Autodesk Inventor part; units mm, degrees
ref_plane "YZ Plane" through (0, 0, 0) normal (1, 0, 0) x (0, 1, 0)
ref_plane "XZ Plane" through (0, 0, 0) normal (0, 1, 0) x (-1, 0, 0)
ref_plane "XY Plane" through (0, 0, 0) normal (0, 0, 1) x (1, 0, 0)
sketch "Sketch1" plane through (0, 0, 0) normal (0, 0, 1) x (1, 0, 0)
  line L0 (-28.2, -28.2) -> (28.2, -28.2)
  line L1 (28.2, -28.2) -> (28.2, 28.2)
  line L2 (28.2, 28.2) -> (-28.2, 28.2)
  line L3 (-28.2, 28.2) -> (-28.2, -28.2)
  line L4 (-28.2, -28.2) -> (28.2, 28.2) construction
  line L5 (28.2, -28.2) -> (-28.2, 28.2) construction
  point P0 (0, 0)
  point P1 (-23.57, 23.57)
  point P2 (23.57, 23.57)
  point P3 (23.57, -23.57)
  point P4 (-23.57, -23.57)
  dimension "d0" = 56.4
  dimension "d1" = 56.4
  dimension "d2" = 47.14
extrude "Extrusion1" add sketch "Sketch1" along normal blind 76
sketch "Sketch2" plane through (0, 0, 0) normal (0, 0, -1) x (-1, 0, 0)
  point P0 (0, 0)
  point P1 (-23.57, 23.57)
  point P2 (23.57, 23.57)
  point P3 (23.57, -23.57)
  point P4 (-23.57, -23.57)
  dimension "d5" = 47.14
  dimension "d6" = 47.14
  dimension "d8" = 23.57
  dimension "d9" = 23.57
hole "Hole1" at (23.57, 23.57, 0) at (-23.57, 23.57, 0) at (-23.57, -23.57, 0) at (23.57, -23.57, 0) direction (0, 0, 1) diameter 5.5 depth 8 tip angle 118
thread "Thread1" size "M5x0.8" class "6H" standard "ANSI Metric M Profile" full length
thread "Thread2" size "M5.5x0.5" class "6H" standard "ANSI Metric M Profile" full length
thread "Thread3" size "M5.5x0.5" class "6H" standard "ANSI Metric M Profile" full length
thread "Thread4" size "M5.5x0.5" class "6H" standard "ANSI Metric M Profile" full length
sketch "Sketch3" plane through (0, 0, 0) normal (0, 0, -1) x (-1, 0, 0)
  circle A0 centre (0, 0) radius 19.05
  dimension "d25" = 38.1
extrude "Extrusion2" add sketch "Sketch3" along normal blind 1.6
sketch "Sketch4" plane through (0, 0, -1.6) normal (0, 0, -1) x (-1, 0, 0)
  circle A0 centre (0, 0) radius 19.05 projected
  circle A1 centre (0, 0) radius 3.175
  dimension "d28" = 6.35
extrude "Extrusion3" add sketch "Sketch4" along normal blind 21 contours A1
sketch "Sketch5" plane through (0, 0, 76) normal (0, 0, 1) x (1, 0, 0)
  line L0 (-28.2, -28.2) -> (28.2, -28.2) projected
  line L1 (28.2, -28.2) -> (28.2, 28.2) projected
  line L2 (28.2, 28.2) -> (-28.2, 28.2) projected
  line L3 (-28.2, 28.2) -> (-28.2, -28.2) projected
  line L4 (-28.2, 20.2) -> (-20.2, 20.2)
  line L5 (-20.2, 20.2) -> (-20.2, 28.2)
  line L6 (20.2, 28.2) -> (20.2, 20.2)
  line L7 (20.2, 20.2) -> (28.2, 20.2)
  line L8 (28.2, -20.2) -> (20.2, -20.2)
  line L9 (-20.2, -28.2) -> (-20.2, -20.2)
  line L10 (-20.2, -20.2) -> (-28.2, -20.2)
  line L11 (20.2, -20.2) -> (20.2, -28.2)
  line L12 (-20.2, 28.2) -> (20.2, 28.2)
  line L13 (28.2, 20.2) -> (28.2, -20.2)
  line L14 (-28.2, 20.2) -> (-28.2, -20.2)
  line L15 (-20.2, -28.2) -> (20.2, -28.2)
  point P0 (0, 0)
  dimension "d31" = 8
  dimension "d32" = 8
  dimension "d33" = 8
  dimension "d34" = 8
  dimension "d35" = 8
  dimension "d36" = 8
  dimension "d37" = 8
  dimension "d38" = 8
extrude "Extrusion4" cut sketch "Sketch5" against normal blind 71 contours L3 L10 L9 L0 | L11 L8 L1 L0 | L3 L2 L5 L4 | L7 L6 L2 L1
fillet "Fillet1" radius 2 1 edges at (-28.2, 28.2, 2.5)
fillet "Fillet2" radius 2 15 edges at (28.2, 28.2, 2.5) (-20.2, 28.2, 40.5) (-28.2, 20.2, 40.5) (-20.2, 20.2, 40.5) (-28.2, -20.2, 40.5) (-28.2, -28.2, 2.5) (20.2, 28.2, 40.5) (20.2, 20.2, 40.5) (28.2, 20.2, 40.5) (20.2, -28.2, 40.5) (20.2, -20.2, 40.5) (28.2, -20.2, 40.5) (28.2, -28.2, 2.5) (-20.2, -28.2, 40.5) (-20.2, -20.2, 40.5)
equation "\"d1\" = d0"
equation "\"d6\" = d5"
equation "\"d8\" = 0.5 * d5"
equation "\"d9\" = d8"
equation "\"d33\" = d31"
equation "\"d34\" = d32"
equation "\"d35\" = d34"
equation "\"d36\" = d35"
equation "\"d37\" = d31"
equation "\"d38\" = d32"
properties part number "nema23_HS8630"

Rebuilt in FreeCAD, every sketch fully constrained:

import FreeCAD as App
import Part
import Sketcher
Q = App.Units.Quantity


def edges_at(feature, points):
    """Names of the edges that pass closest to the given points."""
    edges = feature.Shape.Edges
    near = lambda p: min(range(len(edges)), key=lambda i: edges[i].distToShape(Part.Vertex(*p))[0])
    return sorted({f"Edge{near(p) + 1}" for p in points})


def add_polygon(sketch, points):
    """Adds a closed chain of lines whose ends are joined by coincident constraints."""
    first, n = sketch.GeometryCount, len(points)
    for a, b in zip(points, points[1:] + points[:1]):
        sketch.addGeometry(Part.LineSegment(App.Vector(*a, 0), App.Vector(*b, 0)), False)
    for i in range(n):
        sketch.addConstraint(Sketcher.Constraint("Coincident", first + i, 2, first + (i + 1) % n, 1))

doc = App.newDocument("Part")
body = doc.addObject("PartDesign::Body", "Body")

# Sketch on XY plane
sketch1 = body.newObject("Sketcher::SketchObject", "Sketch")
sketch1.AttachmentSupport = (doc.getObject("XY_Plane"), [""])
sketch1.MapMode = "FlatFace"
add_polygon(sketch1, [(-28.2, 28.2), (-28.2, -28.2), (28.2, -28.2), (28.2, 28.2)])  # lines 0-3
sketch1.addConstraint([
    Sketcher.Constraint("Vertical", 0),
    Sketcher.Constraint("Horizontal", 1),
    Sketcher.Constraint("Vertical", 2),
    Sketcher.Constraint("Horizontal", 3),
    Sketcher.Constraint("Symmetric", 0, 2, 2, 2, -1, 1),
    Sketcher.Constraint("Equal", 3, 0),
    Sketcher.Constraint("DistanceX", 1, 1, 1, 2, Q("56.4 mm")),
])
pad1 = body.newObject("PartDesign::Pad", "Pad")
pad1.Profile = sketch1
pad1.Length = 76

# Sketch on XY plane
sketch2 = body.newObject("Sketcher::SketchObject", "Sketch001")
sketch2.AttachmentSupport = (doc.getObject("XY_Plane"), [""])
sketch2.MapMode = "FlatFace"
sketch2.addGeometry([
    Part.Circle(App.Vector(23.57, 23.57, 0), App.Vector(0, 0, 1), 2.75),
    Part.Circle(App.Vector(-23.57, 23.57, 0), App.Vector(0, 0, 1), 2.75),
    Part.Circle(App.Vector(-23.57, -23.57, 0), App.Vector(0, 0, 1), 2.75),
    Part.Circle(App.Vector(23.57, -23.57, 0), App.Vector(0, 0, 1), 2.75),
], False)
sketch2.addConstraint([
    Sketcher.Constraint("Equal", 0, 1),
    Sketcher.Constraint("Equal", 1, 2),
    Sketcher.Constraint("Equal", 2, 3),
    Sketcher.Constraint("Symmetric", 0, 3, 2, 3, -1, 1),
    Sketcher.Constraint("Symmetric", 1, 3, 3, 3, -1, 1),
    Sketcher.Constraint("Symmetric", 0, 3, 1, 3, -2),
    Sketcher.Constraint("Diameter", 0, Q("5.5 mm")),
    Sketcher.Constraint("DistanceX", -1, 1, 0, 3, Q("23.57 mm")),
    Sketcher.Constraint("DistanceY", -1, 1, 0, 3, Q("23.57 mm")),
])
doc.recompute()
hole = body.newObject("PartDesign::Hole", "Hole")
hole.Profile = sketch2
hole.ThreadType = "None"
hole.Diameter = 5.5
hole.DepthType = "Dimension"
hole.Depth = 8
hole.DrillPoint = "Angled"
hole.DrillPointAngle = 118
hole.Reversed = True

# Sketch on XY plane
sketch3 = body.newObject("Sketcher::SketchObject", "Sketch002")
sketch3.AttachmentSupport = (doc.getObject("XY_Plane"), [""])
sketch3.MapMode = "FlatFace"
sketch3.addGeometry(Part.Circle(App.Vector(0, 0, 0), App.Vector(0, 0, 1), 19.05), False)
sketch3.addConstraint([
    Sketcher.Constraint("Coincident", 0, 3, -1, 1),
    Sketcher.Constraint("Diameter", 0, Q("38.1 mm")),
])
pad2 = body.newObject("PartDesign::Pad", "Pad001")
pad2.Profile = sketch3
pad2.Length = 1.6
pad2.Reversed = True

# Sketch on XY plane
sketch4 = body.newObject("Sketcher::SketchObject", "Sketch003")
sketch4.AttachmentSupport = (doc.getObject("XY_Plane"), [""])
sketch4.MapMode = "FlatFace"
sketch4.AttachmentOffset = App.Placement(App.Vector(0, 0, -1.6), App.Rotation())
sketch4.addGeometry(Part.Circle(App.Vector(0, 0, 0), App.Vector(0, 0, 1), 3.175), False)
sketch4.addConstraint([
    Sketcher.Constraint("Coincident", 0, 3, -1, 1),
    Sketcher.Constraint("Diameter", 0, Q("6.35 mm")),
])
pad3 = body.newObject("PartDesign::Pad", "Pad002")
pad3.Profile = sketch4
pad3.Length = 21
pad3.Reversed = True

# Sketch on XY plane
sketch5 = body.newObject("Sketcher::SketchObject", "Sketch004")
sketch5.AttachmentSupport = (doc.getObject("XY_Plane"), [""])
sketch5.MapMode = "FlatFace"
sketch5.AttachmentOffset = App.Placement(App.Vector(0, 0, 76), App.Rotation())
add_polygon(sketch5, [(-28.2, -20.2), (-28.2, -28.2), (-20.2, -28.2), (-20.2, -20.2)])  # lines 0-3
add_polygon(sketch5, [(20.2, -20.2), (20.2, -28.2), (28.2, -28.2), (28.2, -20.2)])  # lines 4-7
add_polygon(sketch5, [(-28.2, 28.2), (-28.2, 20.2), (-20.2, 20.2), (-20.2, 28.2)])  # lines 8-11
add_polygon(sketch5, [(20.2, 20.2), (28.2, 20.2), (28.2, 28.2), (20.2, 28.2)])  # lines 12-15
sketch5.addConstraint([
    Sketcher.Constraint("Vertical", 0),
    Sketcher.Constraint("Horizontal", 1),
    Sketcher.Constraint("Vertical", 2),
    Sketcher.Constraint("Horizontal", 3),
    Sketcher.Constraint("Vertical", 4),
    Sketcher.Constraint("Horizontal", 5),
    Sketcher.Constraint("Vertical", 6),
    Sketcher.Constraint("Horizontal", 7),
    Sketcher.Constraint("Vertical", 8),
    Sketcher.Constraint("Horizontal", 9),
    Sketcher.Constraint("Vertical", 10),
    Sketcher.Constraint("Horizontal", 11),
    Sketcher.Constraint("Horizontal", 12),
    Sketcher.Constraint("Vertical", 13),
    Sketcher.Constraint("Horizontal", 14),
    Sketcher.Constraint("Vertical", 15),
    Sketcher.Constraint("Symmetric", 6, 2, 8, 2, -1, 1),
    Sketcher.Constraint("Symmetric", 4, 2, 10, 2, -1, 1),
    Sketcher.Constraint("Symmetric", 3, 2, 12, 2, -1, 1),
    Sketcher.Constraint("Symmetric", 1, 2, 14, 2, -1, 1),
    Sketcher.Constraint("Symmetric", 1, 2, 4, 2, -2),
    Sketcher.Constraint("Symmetric", 3, 2, 6, 2, -2),
    Sketcher.Constraint("Equal", 14, 0),
    Sketcher.Constraint("DistanceX", 1, 1, 1, 2, Q("8 mm")),
    Sketcher.Constraint("DistanceX", 0, 2, -1, 1, Q("28.2 mm")),
    Sketcher.Constraint("DistanceY", 0, 2, -1, 1, Q("28.2 mm")),
])
pocket1 = body.newObject("PartDesign::Pocket", "Pocket")
pocket1.Profile = sketch5
pocket1.Length = 71
doc.recompute()

fillet = body.newObject("PartDesign::Fillet", "Fillet")
fillet.Base = (pocket1, edges_at(pocket1, [(-28.2, 28.2, 2.5)]))
fillet.Radius = 2
doc.recompute()

fillet2 = body.newObject("PartDesign::Fillet", "Fillet001")
fillet2.Base = (fillet, edges_at(fillet, [
    (28.2, 28.2, 2.5),
    (-20.2, 28.2, 40.5),
    (-28.2, 20.2, 40.5),
    (-20.2, 20.2, 40.5),
    (-28.2, -20.2, 40.5),
    (-28.2, -28.2, 2.5),
    (20.2, 28.2, 40.5),
    (20.2, 20.2, 40.5),
    (28.2, 20.2, 40.5),
    (20.2, -28.2, 40.5),
    (20.2, -20.2, 40.5),
    (28.2, -20.2, 40.5),
    (28.2, -28.2, 2.5),
    (-20.2, -28.2, 40.5),
    (-20.2, -20.2, 40.5),
]))
fillet2.Radius = 2

doc.recompute()
